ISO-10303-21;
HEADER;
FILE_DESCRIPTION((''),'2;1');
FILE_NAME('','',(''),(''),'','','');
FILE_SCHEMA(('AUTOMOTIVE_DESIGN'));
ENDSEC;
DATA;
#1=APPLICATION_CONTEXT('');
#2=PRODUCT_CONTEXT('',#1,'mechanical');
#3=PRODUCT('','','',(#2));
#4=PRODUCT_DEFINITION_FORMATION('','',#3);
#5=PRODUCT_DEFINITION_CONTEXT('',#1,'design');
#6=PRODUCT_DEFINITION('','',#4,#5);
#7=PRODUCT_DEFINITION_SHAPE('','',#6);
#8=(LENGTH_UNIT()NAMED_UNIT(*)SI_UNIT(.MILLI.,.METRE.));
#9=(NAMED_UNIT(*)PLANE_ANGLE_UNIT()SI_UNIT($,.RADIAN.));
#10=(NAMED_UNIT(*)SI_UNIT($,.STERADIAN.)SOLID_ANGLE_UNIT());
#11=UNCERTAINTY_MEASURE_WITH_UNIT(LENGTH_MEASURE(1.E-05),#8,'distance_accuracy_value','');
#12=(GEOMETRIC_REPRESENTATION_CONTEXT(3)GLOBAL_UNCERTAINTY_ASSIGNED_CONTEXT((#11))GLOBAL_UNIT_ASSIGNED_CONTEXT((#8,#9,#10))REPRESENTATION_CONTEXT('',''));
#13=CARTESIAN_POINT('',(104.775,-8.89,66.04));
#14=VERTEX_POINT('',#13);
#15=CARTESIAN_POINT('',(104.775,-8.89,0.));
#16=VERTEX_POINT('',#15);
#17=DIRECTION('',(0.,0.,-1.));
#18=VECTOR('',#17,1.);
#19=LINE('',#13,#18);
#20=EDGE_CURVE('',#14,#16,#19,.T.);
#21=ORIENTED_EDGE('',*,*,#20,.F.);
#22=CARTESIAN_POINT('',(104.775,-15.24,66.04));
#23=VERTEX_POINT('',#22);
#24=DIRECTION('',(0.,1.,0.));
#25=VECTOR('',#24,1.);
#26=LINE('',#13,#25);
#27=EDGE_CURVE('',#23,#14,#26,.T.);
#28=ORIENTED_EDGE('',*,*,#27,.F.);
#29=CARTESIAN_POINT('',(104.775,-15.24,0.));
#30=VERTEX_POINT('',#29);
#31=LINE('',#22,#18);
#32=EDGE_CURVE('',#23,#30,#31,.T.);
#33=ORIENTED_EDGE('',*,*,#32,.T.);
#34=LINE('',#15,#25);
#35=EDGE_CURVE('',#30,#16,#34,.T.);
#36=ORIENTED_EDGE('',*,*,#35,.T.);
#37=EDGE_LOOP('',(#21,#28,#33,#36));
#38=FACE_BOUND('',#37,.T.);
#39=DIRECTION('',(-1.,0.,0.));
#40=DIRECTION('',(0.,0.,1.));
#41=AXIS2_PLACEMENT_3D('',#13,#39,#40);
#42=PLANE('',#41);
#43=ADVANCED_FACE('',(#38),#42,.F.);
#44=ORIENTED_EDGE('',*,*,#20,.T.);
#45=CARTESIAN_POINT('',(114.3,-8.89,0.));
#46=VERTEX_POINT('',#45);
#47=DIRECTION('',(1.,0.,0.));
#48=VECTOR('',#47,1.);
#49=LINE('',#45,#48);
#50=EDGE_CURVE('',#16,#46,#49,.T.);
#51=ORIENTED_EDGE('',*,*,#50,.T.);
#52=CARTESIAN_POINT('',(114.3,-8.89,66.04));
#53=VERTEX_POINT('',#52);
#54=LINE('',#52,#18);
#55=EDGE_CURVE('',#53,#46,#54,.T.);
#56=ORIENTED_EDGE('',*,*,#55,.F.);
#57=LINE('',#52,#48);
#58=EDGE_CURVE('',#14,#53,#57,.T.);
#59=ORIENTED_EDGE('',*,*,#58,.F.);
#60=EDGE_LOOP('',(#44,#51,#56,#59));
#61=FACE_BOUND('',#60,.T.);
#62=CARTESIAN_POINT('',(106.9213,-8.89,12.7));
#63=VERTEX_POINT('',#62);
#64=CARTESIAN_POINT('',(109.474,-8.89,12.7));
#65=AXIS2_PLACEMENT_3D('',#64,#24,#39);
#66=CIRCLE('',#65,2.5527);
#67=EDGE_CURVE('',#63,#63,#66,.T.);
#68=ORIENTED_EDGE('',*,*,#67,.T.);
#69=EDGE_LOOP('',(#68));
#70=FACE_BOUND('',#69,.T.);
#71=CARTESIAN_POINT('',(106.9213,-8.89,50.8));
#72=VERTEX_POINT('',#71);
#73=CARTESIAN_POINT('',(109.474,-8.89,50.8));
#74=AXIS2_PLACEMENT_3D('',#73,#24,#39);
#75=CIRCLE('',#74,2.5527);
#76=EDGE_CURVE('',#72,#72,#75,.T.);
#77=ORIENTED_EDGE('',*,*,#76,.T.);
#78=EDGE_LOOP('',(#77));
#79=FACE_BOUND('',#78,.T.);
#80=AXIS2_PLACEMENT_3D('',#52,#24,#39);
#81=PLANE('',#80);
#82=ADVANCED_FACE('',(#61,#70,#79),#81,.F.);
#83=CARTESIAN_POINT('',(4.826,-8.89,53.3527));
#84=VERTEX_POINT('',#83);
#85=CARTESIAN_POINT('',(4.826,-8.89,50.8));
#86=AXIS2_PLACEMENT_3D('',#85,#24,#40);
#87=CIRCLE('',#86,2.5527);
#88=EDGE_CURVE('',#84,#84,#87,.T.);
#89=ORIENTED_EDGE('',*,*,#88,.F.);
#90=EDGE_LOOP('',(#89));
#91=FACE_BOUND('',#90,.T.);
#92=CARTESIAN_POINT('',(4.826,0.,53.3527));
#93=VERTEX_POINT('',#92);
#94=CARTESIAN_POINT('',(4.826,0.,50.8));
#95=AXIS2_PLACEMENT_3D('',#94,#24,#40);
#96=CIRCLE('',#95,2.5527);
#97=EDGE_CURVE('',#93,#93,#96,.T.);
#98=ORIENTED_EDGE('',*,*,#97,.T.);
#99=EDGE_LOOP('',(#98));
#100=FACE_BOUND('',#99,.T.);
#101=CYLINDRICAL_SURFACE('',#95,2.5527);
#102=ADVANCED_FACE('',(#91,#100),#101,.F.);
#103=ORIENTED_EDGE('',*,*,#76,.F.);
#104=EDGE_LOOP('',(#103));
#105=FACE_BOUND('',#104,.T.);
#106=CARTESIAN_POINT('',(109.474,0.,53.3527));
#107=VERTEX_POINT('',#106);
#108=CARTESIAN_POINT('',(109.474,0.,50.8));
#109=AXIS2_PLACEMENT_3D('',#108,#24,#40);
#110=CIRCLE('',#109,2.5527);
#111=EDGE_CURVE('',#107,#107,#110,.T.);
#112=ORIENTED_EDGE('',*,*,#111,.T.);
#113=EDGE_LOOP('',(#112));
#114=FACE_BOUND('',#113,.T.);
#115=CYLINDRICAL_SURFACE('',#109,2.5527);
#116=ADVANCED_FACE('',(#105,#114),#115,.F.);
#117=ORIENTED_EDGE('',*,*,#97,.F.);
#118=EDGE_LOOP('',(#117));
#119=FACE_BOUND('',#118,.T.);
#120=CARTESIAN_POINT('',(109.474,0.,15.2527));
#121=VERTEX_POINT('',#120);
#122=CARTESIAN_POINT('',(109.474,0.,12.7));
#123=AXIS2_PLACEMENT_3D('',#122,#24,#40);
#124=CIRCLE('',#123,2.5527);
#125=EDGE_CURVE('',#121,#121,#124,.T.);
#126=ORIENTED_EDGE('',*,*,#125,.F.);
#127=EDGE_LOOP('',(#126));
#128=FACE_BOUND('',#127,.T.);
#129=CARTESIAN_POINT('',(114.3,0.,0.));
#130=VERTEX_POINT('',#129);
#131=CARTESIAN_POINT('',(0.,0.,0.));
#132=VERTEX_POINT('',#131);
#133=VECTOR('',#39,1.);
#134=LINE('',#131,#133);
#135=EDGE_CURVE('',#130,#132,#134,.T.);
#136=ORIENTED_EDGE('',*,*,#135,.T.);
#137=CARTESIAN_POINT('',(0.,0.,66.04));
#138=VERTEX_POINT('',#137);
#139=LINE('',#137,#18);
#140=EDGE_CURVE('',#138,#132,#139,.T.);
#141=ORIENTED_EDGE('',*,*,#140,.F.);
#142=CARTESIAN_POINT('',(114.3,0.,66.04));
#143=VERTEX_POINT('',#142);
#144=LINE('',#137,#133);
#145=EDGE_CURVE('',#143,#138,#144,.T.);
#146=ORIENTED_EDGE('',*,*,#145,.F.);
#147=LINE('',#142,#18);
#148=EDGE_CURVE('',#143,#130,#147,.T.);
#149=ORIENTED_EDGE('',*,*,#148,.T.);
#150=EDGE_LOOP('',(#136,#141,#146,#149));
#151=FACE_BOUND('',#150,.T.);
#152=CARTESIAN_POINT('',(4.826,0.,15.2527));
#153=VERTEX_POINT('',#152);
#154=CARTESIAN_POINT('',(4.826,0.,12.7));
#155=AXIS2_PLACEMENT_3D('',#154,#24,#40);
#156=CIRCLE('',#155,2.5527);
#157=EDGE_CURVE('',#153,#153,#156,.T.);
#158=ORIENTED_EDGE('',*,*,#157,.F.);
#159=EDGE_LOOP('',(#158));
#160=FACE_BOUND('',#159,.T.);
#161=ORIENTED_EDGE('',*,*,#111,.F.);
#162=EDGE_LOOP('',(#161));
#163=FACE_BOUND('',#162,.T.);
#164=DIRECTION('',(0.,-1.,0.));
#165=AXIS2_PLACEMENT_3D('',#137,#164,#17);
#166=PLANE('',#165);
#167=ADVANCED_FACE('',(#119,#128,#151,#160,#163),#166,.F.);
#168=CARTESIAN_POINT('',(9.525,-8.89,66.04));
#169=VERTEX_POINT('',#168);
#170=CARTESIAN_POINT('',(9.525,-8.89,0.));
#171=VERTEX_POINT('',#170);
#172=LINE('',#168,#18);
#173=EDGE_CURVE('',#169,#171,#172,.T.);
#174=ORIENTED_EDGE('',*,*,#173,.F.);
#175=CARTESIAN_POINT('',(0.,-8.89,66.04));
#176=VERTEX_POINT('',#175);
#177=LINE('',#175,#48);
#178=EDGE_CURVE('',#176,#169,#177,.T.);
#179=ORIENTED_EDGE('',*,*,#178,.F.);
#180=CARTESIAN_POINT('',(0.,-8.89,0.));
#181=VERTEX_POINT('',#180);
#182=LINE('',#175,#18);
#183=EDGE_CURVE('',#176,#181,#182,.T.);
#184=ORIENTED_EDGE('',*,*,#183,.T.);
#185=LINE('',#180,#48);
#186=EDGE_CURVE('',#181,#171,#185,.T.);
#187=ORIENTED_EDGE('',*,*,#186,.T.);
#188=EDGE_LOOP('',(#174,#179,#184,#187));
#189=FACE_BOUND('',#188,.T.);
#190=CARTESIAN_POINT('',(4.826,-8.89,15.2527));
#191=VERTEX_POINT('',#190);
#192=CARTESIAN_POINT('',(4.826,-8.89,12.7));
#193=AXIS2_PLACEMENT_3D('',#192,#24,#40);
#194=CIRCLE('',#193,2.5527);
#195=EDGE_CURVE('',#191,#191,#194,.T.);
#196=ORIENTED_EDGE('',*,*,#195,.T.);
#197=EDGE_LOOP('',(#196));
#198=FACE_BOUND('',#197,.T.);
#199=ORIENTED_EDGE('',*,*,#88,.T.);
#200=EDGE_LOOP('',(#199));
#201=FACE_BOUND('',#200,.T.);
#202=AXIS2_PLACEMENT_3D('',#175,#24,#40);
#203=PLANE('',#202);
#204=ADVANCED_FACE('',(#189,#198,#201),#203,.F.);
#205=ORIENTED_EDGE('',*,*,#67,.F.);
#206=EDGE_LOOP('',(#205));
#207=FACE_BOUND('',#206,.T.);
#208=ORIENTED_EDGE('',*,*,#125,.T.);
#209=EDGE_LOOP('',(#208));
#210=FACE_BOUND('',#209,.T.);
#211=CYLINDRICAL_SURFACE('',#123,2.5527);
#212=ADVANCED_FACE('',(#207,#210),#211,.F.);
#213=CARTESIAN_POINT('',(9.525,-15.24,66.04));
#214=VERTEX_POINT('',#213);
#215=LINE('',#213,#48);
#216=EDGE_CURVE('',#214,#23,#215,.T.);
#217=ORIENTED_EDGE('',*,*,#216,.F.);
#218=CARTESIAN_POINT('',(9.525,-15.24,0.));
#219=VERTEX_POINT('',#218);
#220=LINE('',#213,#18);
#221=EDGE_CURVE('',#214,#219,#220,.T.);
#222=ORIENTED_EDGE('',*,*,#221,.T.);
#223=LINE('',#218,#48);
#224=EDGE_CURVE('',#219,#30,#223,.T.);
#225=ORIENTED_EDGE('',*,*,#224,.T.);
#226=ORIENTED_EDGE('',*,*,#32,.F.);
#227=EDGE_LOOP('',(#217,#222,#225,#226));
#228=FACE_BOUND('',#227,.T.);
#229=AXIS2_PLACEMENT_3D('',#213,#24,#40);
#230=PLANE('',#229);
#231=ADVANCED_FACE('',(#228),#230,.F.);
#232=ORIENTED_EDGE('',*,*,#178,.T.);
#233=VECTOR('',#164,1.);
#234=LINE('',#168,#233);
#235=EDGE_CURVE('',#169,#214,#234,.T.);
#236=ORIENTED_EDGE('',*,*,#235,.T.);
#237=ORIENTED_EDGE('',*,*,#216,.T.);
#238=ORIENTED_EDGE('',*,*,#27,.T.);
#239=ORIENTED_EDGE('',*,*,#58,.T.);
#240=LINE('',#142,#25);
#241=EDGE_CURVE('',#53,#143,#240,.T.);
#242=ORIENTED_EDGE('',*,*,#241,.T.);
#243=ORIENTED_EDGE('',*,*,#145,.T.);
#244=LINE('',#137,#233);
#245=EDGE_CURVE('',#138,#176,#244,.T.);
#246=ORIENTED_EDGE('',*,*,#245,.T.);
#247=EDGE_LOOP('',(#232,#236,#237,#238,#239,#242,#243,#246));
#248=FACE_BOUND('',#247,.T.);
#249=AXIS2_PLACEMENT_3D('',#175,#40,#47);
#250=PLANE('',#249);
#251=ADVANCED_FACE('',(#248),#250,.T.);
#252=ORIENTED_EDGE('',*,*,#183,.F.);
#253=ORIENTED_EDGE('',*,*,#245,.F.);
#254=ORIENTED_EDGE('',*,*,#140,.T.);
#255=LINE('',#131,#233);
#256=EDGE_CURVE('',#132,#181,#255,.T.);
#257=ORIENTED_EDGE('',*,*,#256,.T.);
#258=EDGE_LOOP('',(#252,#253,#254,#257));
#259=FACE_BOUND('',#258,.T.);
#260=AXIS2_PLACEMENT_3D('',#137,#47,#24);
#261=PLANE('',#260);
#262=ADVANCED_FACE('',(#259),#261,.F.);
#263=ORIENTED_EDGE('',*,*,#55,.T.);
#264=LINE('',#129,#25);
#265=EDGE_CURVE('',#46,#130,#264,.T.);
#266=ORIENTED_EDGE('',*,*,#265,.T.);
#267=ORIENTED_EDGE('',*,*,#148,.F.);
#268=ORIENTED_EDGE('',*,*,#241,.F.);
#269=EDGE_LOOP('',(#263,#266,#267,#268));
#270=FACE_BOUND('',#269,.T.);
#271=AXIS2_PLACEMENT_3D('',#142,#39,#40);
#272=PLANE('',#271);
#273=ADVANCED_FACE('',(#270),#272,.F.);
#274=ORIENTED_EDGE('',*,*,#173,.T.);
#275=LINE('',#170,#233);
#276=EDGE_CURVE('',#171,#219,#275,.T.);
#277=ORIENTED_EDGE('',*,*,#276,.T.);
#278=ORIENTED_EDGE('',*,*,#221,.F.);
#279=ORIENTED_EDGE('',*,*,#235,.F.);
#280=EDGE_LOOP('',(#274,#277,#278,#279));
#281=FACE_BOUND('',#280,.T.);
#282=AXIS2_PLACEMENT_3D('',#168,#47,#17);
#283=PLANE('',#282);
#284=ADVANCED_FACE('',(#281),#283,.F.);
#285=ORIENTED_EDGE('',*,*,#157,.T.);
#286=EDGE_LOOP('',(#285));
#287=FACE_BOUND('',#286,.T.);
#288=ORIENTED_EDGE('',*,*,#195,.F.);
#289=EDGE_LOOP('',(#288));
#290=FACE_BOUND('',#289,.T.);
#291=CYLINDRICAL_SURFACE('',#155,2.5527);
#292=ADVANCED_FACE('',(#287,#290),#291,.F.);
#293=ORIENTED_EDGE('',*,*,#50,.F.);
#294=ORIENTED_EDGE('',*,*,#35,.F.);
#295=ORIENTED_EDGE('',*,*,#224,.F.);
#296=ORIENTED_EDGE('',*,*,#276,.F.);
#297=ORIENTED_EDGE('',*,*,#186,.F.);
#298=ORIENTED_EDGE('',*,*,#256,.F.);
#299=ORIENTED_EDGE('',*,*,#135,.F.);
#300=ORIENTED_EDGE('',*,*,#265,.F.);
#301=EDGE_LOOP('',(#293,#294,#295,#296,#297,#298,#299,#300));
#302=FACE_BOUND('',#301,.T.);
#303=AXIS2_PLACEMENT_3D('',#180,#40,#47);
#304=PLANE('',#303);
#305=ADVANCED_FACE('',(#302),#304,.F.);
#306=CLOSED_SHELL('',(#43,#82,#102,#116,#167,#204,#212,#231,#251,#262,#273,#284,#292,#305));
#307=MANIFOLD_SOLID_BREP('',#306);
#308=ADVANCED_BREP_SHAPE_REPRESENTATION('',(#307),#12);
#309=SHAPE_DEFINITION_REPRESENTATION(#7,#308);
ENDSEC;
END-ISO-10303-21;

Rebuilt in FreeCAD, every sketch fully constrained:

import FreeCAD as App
import Part
import Sketcher
Q = App.Units.Quantity

doc = App.newDocument("Part")
params = doc.addObject("Spreadsheet::Sheet", "Params")
for row, (alias, value) in enumerate([
    ("sketch1_width", "4.5 in"),
    ("sketch1_width2", "3.75 in"),
    ("sketch1_height", "0.35 in"),
    ("sketch1_height2", "0.25 in"),
    ("pad1_length", "2.6 in"),
    ("sketch2_diameter", "0.201 in"),
    ("hole_diameter", "0.201 in"),
], start=1):
    params.set(f"A{row}", alias)
    params.set(f"B{row}", "=" + value)
    params.setAlias(f"B{row}", alias)

body = doc.addObject("PartDesign::Body", "Body")

sketch1 = doc.addObject("Sketcher::SketchObject", "Sketch")
body.addObject(sketch1)
sketch1.AttachmentSupport = (doc.XY_Plane, [""])
sketch1.MapMode = "FlatFace"
sketch1.addGeometry([
    Part.LineSegment(App.Vector(114, 0, 0), App.Vector(0, 0, 0)),
    Part.LineSegment(App.Vector(0, 0, 0), App.Vector(0, -9, 0)),
    Part.LineSegment(App.Vector(0, -9, 0), App.Vector(10, -9, 0)),
    Part.LineSegment(App.Vector(10, -9, 0), App.Vector(10, -15, 0)),
    Part.LineSegment(App.Vector(10, -15, 0), App.Vector(105, -15, 0)),
    Part.LineSegment(App.Vector(105, -15, 0), App.Vector(105, -9, 0)),
    Part.LineSegment(App.Vector(105, -9, 0), App.Vector(114, -9, 0)),
    Part.LineSegment(App.Vector(114, -9, 0), App.Vector(114, 0, 0)),
], False)
sketch1.addConstraint([
    Sketcher.Constraint("Coincident", 0, 2, 1, 1),
    Sketcher.Constraint("Coincident", 1, 2, 2, 1),
    Sketcher.Constraint("Coincident", 2, 2, 3, 1),
    Sketcher.Constraint("Coincident", 3, 2, 4, 1),
    Sketcher.Constraint("Coincident", 4, 2, 5, 1),
    Sketcher.Constraint("Coincident", 5, 2, 6, 1),
    Sketcher.Constraint("Coincident", 6, 2, 7, 1),
    Sketcher.Constraint("Coincident", 7, 2, 0, 1),
    Sketcher.Constraint("Horizontal", 0),
    Sketcher.Constraint("Vertical", 1),
    Sketcher.Constraint("Horizontal", 2),
    Sketcher.Constraint("Vertical", 3),
    Sketcher.Constraint("Horizontal", 4),
    Sketcher.Constraint("Vertical", 5),
    Sketcher.Constraint("Horizontal", 6),
    Sketcher.Constraint("Vertical", 7),
    Sketcher.Constraint("Coincident", 0, 2, -1, 1),
    Sketcher.Constraint("Horizontal", 2, 2, 5, 2),
    Sketcher.Constraint("Equal", 2, 6),
    Sketcher.Constraint("DistanceX", 0, 2, 0, 1, Q("4.5 in")),
    Sketcher.Constraint("DistanceX", 4, 1, 4, 2, Q("3.75 in")),
    Sketcher.Constraint("DistanceY", 1, 2, 1, 1, Q("0.35 in")),
    Sketcher.Constraint("DistanceY", 3, 2, 3, 1, Q("0.25 in")),
])
sketch1.setExpression("Constraints[19]", "Params.sketch1_width")
sketch1.setExpression("Constraints[20]", "Params.sketch1_width2")
sketch1.setExpression("Constraints[21]", "Params.sketch1_height")
sketch1.setExpression("Constraints[22]", "Params.sketch1_height2")
pad1 = doc.addObject("PartDesign::Pad", "Pad")
body.addObject(pad1)
pad1.Profile = sketch1
pad1.setExpression("Length", "Params.pad1_length")

sketch2 = doc.addObject("Sketcher::SketchObject", "Sketch001")
body.addObject(sketch2)
sketch2.AttachmentSupport = (doc.XZ_Plane, [""])
sketch2.MapMode = "FlatFace"
sketch2.addGeometry([
    Part.Circle(App.Vector(4.8, 12.7, 0), App.Vector(0, 0, 1), 2.6),
    Part.Circle(App.Vector(4.8, 50.8, 0), App.Vector(0, 0, 1), 2.6),
    Part.Circle(App.Vector(109.5, 50.8, 0), App.Vector(0, 0, 1), 2.6),
    Part.Circle(App.Vector(109.5, 12.7, 0), App.Vector(0, 0, 1), 2.6),
], False)
sketch2.addConstraint([
    Sketcher.Constraint("Equal", 0, 1),
    Sketcher.Constraint("Equal", 1, 2),
    Sketcher.Constraint("Equal", 2, 3),
    Sketcher.Constraint("Horizontal", 1, 3, 2, 3),
    Sketcher.Constraint("Horizontal", 0, 3, 3, 3),
    Sketcher.Constraint("Vertical", 0, 3, 1, 3),
    Sketcher.Constraint("Vertical", 2, 3, 3, 3),
    Sketcher.Constraint("Diameter", 0, Q("0.201 in")),
    Sketcher.Constraint("DistanceY", -1, 1, 1, 3, Q("2 in")),
    Sketcher.Constraint("DistanceY", -1, 1, 0, 3, Q("0.5 in")),
    Sketcher.Constraint("DistanceX", -1, 1, 0, 3, Q("0.19 in")),
    Sketcher.Constraint("DistanceX", -1, 1, 2, 3, Q("4.31 in")),
])
sketch2.setExpression("Constraints[7]", "Params.sketch2_diameter")
doc.recompute()
hole = doc.addObject("PartDesign::Hole", "Hole")
body.addObject(hole)
hole.Profile = sketch2
hole.ThreadType = "None"
hole.setExpression("Diameter", "Params.hole_diameter")
hole.DepthType = "ThroughAll"
hole.Reversed = True

doc.recompute()
